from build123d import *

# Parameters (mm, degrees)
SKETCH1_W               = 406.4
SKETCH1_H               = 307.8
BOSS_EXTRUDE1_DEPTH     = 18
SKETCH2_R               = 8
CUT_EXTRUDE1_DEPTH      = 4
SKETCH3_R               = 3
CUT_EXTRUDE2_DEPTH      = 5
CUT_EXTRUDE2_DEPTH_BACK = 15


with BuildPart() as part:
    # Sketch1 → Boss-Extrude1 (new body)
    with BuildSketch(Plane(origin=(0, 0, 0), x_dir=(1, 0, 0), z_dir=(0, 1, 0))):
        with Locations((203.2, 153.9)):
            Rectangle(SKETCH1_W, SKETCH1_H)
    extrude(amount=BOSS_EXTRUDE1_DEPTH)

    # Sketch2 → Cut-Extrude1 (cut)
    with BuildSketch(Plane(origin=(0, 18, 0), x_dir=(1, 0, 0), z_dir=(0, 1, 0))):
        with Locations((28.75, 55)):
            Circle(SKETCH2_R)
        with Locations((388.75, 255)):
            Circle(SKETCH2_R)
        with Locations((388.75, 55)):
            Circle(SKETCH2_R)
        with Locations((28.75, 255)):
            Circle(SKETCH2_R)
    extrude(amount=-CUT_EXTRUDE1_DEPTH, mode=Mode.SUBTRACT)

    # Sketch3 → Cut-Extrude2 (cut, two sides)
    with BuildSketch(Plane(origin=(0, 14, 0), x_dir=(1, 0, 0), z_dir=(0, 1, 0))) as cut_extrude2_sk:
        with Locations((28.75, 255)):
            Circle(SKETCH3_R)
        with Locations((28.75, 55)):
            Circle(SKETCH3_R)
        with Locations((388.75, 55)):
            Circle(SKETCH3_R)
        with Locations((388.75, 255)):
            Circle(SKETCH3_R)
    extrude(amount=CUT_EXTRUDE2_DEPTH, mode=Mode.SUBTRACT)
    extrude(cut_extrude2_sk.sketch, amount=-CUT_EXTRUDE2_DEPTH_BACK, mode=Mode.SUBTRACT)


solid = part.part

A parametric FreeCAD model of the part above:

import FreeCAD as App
import Part
import Sketcher

doc = App.newDocument("Part")
body = doc.addObject("PartDesign::Body", "Body")

# Sketch on XZ plane
sketch1 = body.newObject("Sketcher::SketchObject", "Sketch")
sketch1.AttachmentSupport = (doc.getObject("XZ_Plane"), [""])
sketch1.MapMode = "FlatFace"
sketch1.addGeometry([
    Part.LineSegment(App.Vector(0, -308, 0), App.Vector(0, 0, 0)),
    Part.LineSegment(App.Vector(0, 0, 0), App.Vector(406, 0, 0)),
    Part.LineSegment(App.Vector(406, 0, 0), App.Vector(406, -308, 0)),
    Part.LineSegment(App.Vector(406, -308, 0), App.Vector(0, -308, 0)),
], False)
sketch1.addConstraint([
    Sketcher.Constraint("Coincident", 0, 2, 1, 1),
    Sketcher.Constraint("Coincident", 1, 2, 2, 1),
    Sketcher.Constraint("Coincident", 2, 2, 3, 1),
    Sketcher.Constraint("Coincident", 3, 2, 0, 1),
    Sketcher.Constraint("Vertical", 0),
    Sketcher.Constraint("Horizontal", 1),
    Sketcher.Constraint("Vertical", 2),
    Sketcher.Constraint("Horizontal", 3),
    Sketcher.Constraint("Coincident", 0, 2, -1, 1),
    Sketcher.Constraint("DistanceX", 1, 1, 1, 2, 406.4),
    Sketcher.Constraint("DistanceY", 0, 1, 0, 2, 307.8),
])
pad1 = body.newObject("PartDesign::Pad", "Pad")
pad1.Profile = sketch1
pad1.Length = 18
pad1.Reversed = True

# Sketch on XZ plane
sketch2 = body.newObject("Sketcher::SketchObject", "Sketch001")
sketch2.AttachmentSupport = (doc.getObject("XZ_Plane"), [""])
sketch2.MapMode = "FlatFace"
sketch2.AttachmentOffset = App.Placement(App.Vector(0, 0, -18), App.Rotation())
sketch2.addGeometry([
    Part.Circle(App.Vector(29, -55, 0), App.Vector(0, 0, 1), 8),
    Part.Circle(App.Vector(389, -255, 0), App.Vector(0, 0, 1), 8),
    Part.Circle(App.Vector(389, -55, 0), App.Vector(0, 0, 1), 8),
    Part.Circle(App.Vector(29, -255, 0), App.Vector(0, 0, 1), 8),
], False)
sketch2.addConstraint([
    Sketcher.Constraint("Equal", 0, 1),
    Sketcher.Constraint("Equal", 1, 2),
    Sketcher.Constraint("Equal", 2, 3),
    Sketcher.Constraint("Horizontal", 0, 3, 2, 3),
    Sketcher.Constraint("Horizontal", 1, 3, 3, 3),
    Sketcher.Constraint("Vertical", 1, 3, 2, 3),
    Sketcher.Constraint("Vertical", 0, 3, 3, 3),
    Sketcher.Constraint("Diameter", 0, 16.0),
    Sketcher.Constraint("DistanceY", 0, 3, -1, 1, 55.0),
    Sketcher.Constraint("DistanceY", 1, 3, -1, 1, 255.0),
    Sketcher.Constraint("DistanceX", 0, 3, 1, 3, 360.0),
    Sketcher.Constraint("DistanceX", -1, 1, 0, 3, 28.75),
])
pocket1 = body.newObject("PartDesign::Pocket", "Pocket")
pocket1.Profile = sketch2
pocket1.Length = 4
pocket1.Reversed = True

# Sketch on XZ plane
sketch3 = body.newObject("Sketcher::SketchObject", "Sketch002")
sketch3.AttachmentSupport = (doc.getObject("XZ_Plane"), [""])
sketch3.MapMode = "FlatFace"
sketch3.AttachmentOffset = App.Placement(App.Vector(0, 0, -14), App.Rotation())
sketch3.addGeometry([
    Part.Circle(App.Vector(28.8, -255, 0), App.Vector(0, 0, 1), 3),
    Part.Circle(App.Vector(28.8, -55, 0), App.Vector(0, 0, 1), 3),
    Part.Circle(App.Vector(388.8, -55, 0), App.Vector(0, 0, 1), 3),
    Part.Circle(App.Vector(388.8, -255, 0), App.Vector(0, 0, 1), 3),
], False)
sketch3.addConstraint([
    Sketcher.Constraint("Equal", 0, 1),
    Sketcher.Constraint("Equal", 1, 2),
    Sketcher.Constraint("Equal", 2, 3),
    Sketcher.Constraint("Horizontal", 1, 3, 2, 3),
    Sketcher.Constraint("Horizontal", 0, 3, 3, 3),
    Sketcher.Constraint("Vertical", 0, 3, 1, 3),
    Sketcher.Constraint("Vertical", 2, 3, 3, 3),
    Sketcher.Constraint("Diameter", 0, 6.0),
    Sketcher.Constraint("DistanceY", 0, 3, -1, 1, 255.0),
    Sketcher.Constraint("DistanceY", 1, 3, -1, 1, 55.0),
    Sketcher.Constraint("DistanceX", 1, 3, 2, 3, 360.0),
    Sketcher.Constraint("DistanceX", -1, 1, 0, 3, 28.75),
])
pocket2 = body.newObject("PartDesign::Pocket", "Pocket001")
pocket2.Profile = sketch3
pocket2.Type = "ThroughAll"
pocket2.Midplane = True

doc.recompute()
